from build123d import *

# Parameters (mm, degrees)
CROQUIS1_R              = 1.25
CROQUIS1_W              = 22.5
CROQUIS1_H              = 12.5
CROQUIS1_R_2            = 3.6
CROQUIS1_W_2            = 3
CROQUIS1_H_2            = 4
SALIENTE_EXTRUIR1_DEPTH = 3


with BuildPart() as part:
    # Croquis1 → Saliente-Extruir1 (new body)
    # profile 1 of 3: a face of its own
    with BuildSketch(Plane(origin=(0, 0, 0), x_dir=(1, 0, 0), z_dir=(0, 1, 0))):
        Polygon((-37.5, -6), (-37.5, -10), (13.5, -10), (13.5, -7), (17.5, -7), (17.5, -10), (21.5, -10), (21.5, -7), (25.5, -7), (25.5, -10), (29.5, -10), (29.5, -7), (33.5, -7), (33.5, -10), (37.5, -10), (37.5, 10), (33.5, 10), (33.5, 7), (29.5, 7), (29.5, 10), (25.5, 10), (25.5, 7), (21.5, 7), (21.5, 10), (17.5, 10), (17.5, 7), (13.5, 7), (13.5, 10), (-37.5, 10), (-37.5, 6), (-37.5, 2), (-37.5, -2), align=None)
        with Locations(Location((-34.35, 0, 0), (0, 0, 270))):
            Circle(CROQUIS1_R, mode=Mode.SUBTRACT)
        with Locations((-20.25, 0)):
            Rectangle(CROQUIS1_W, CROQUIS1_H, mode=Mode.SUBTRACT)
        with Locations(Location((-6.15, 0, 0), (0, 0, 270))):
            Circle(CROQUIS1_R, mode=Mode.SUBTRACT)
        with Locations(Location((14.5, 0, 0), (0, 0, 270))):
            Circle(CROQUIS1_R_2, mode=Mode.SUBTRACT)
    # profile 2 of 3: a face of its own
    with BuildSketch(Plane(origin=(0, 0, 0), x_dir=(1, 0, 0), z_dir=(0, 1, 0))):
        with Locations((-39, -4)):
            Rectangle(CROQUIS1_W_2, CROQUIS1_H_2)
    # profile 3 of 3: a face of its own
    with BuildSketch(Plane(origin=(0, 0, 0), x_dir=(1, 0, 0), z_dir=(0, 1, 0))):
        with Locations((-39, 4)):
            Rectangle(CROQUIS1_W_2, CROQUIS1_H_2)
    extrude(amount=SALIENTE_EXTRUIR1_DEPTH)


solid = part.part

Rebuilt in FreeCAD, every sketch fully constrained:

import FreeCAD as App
import Part
import Sketcher

V = App.Vector


def add_polygon(sketch, points):
    """Adds a closed chain of lines whose ends are joined by coincident constraints."""
    first, n = sketch.GeometryCount, len(points)
    for a, b in zip(points, points[1:] + points[:1]):
        sketch.addGeometry(Part.LineSegment(App.Vector(*a, 0), App.Vector(*b, 0)), False)
    for i in range(n):
        sketch.addConstraint(Sketcher.Constraint("Coincident", first + i, 2, first + (i + 1) % n, 1))

doc = App.newDocument("Part")
params = doc.addObject("Spreadsheet::Sheet", "Params")
for row, (alias, value) in enumerate([
    ("sketch1_diameter", "2.5 mm"),
    ("sketch1_diameter2", "7.2 mm"),
    ("sketch1_width", "51 mm"),
    ("sketch1_width2", "4 mm"),
    ("sketch1_width3", "3 mm"),
    ("pad1_length", "3 mm"),
], start=1):
    params.set(f"A{row}", alias)
    params.set(f"B{row}", "=" + value)
    params.setAlias(f"B{row}", alias)

body = doc.addObject("PartDesign::Body", "Body")

sketch1 = doc.addObject("Sketcher::SketchObject", "Sketch")
body.addObject(sketch1)
sketch1.AttachmentSupport = (doc.XZ_Plane, [""])
sketch1.MapMode = "FlatFace"
add_polygon(sketch1, [(-37.5, 10), (13.5, 10), (13.5, 7), (17.5, 7), (17.5, 10), (21.5, 10), (21.5, 7), (25.5, 7), (25.5, 10), (29.5, 10), (29.5, 7), (33.5, 7), (33.5, 10), (37.5, 10), (37.5, -10), (33.5, -10), (33.5, -7), (29.5, -7), (29.5, -10), (25.5, -10), (25.5, -7), (21.5, -7), (21.5, -10), (17.5, -10), (17.5, -7), (13.5, -7), (13.5, -10), (-37.5, -10), (-37.5, -6), (-40.5, -6), (-40.5, -2), (-37.5, -2), (-37.5, 2), (-40.5, 2), (-40.5, 6), (-37.5, 6)])
sketch1.addGeometry(Part.Circle(V(-34.4, 0, 0), V(0, 0, 1), 1.2), False)
add_polygon(sketch1, [(-9, 6.2), (-31.5, 6.2), (-31.5, -6.2), (-9, -6.2)])
sketch1.addGeometry(Part.Circle(V(-6.2, 0, 0), V(0, 0, 1), 1.2), False)
sketch1.addGeometry(Part.Circle(V(14.5, 0, 0), V(0, 0, 1), 3.6), False)
sketch1.addConstraint([
    Sketcher.Constraint("Horizontal", 0),
    Sketcher.Constraint("Vertical", 1),
    Sketcher.Constraint("Horizontal", 2),
    Sketcher.Constraint("Vertical", 3),
    Sketcher.Constraint("Horizontal", 4),
    Sketcher.Constraint("Vertical", 5),
    Sketcher.Constraint("Horizontal", 6),
    Sketcher.Constraint("Vertical", 7),
    Sketcher.Constraint("Horizontal", 8),
    Sketcher.Constraint("Vertical", 9),
    Sketcher.Constraint("Horizontal", 10),
    Sketcher.Constraint("Vertical", 11),
    Sketcher.Constraint("Horizontal", 12),
    Sketcher.Constraint("Vertical", 13),
    Sketcher.Constraint("Horizontal", 14),
    Sketcher.Constraint("Vertical", 15),
    Sketcher.Constraint("Horizontal", 16),
    Sketcher.Constraint("Vertical", 17),
    Sketcher.Constraint("Horizontal", 18),
    Sketcher.Constraint("Vertical", 19),
    Sketcher.Constraint("Horizontal", 20),
    Sketcher.Constraint("Vertical", 21),
    Sketcher.Constraint("Horizontal", 22),
    Sketcher.Constraint("Vertical", 23),
    Sketcher.Constraint("Horizontal", 24),
    Sketcher.Constraint("Vertical", 25),
    Sketcher.Constraint("Horizontal", 26),
    Sketcher.Constraint("Vertical", 27),
    Sketcher.Constraint("Horizontal", 28),
    Sketcher.Constraint("Vertical", 29),
    Sketcher.Constraint("Horizontal", 30),
    Sketcher.Constraint("Vertical", 31),
    Sketcher.Constraint("Horizontal", 32),
    Sketcher.Constraint("Vertical", 33),
    Sketcher.Constraint("Horizontal", 34),
    Sketcher.Constraint("Vertical", 35),
    Sketcher.Constraint("Horizontal", 37),
    Sketcher.Constraint("Vertical", 38),
    Sketcher.Constraint("Horizontal", 39),
    Sketcher.Constraint("Vertical", 40),
    Sketcher.Constraint("Equal", 36, 41),
    Sketcher.Constraint("Symmetric", 12, 2, 26, 2, -1, 1),
    Sketcher.Constraint("Symmetric", 13, 2, 35, 2, -1, 1),
    Sketcher.Constraint("Symmetric", 11, 2, 14, 2, -1),
    Sketcher.Constraint("Symmetric", 9, 2, 16, 2, -1),
    Sketcher.Constraint("Symmetric", 7, 2, 18, 2, -1),
    Sketcher.Constraint("Symmetric", 5, 2, 20, 2, -1),
    Sketcher.Constraint("Symmetric", 3, 2, 22, 2, -1),
    Sketcher.Constraint("Symmetric", 1, 2, 24, 2, -1),
    Sketcher.Constraint("Symmetric", 29, 2, 32, 2, -1),
    Sketcher.Constraint("PointOnObject", 36, 3, -1),
    Sketcher.Constraint("PointOnObject", 41, 3, -1),
    Sketcher.Constraint("PointOnObject", 42, 3, -1),
    Sketcher.Constraint("Horizontal", 0, 2, 3, 2),
    Sketcher.Constraint("Horizontal", 2, 2, 5, 2),
    Sketcher.Constraint("Horizontal", 4, 2, 7, 2),
    Sketcher.Constraint("Horizontal", 6, 2, 9, 2),
    Sketcher.Constraint("Vertical", 27, 2, 30, 2),
    Sketcher.Constraint("Equal", 2, 4),
    Sketcher.Constraint("Equal", 4, 6),
    Sketcher.Constraint("Equal", 6, 8),
    Sketcher.Constraint("Equal", 8, 10),
    Sketcher.Constraint("Equal", 10, 12),
    Sketcher.Constraint("Equal", 34, 1),
    Sketcher.Constraint("Equal", 24, 27),
    Sketcher.Constraint("Equal", 27, 29),
    Sketcher.Constraint("Equal", 29, 31),
    Sketcher.Constraint("Equal", 31, 33),
    Sketcher.Constraint("Diameter", 36, 2.5),
    Sketcher.Constraint("Diameter", 42, 7.2),
    Sketcher.Constraint("DistanceX", 0, 1, 0, 2, 51.0),
    Sketcher.Constraint("DistanceX", 2, 1, 2, 2, 4.0),
    Sketcher.Constraint("DistanceX", 28, 2, 28, 1, 3.0),
    Sketcher.Constraint("DistanceX", 37, 2, 37, 1, 22.5),
    Sketcher.Constraint("DistanceY", 38, 2, 38, 1, 12.5),
    Sketcher.Constraint("DistanceX", 39, 2, -1, 1, 9.0),
    Sketcher.Constraint("DistanceX", 0, 2, 42, 3, 1.0),
    Sketcher.Constraint("DistanceX", 36, 3, 41, 3, 28.2),
    Sketcher.Constraint("DistanceX", 36, 3, -1, 1, 34.35),
    Sketcher.Constraint("DistanceY", -1, 1, 37, 2, 6.25),
])
sketch1.setExpression("Constraints[108]", "Params.sketch1_diameter")
sketch1.setExpression("Constraints[109]", "Params.sketch1_diameter2")
sketch1.setExpression("Constraints[110]", "Params.sketch1_width")
sketch1.setExpression("Constraints[111]", "Params.sketch1_width2")
sketch1.setExpression("Constraints[112]", "Params.sketch1_width3")
pad1 = doc.addObject("PartDesign::Pad", "Pad")
body.addObject(pad1)
pad1.Profile = sketch1
pad1.setExpression("Length", "Params.pad1_length")
pad1.Reversed = True

doc.recompute()
